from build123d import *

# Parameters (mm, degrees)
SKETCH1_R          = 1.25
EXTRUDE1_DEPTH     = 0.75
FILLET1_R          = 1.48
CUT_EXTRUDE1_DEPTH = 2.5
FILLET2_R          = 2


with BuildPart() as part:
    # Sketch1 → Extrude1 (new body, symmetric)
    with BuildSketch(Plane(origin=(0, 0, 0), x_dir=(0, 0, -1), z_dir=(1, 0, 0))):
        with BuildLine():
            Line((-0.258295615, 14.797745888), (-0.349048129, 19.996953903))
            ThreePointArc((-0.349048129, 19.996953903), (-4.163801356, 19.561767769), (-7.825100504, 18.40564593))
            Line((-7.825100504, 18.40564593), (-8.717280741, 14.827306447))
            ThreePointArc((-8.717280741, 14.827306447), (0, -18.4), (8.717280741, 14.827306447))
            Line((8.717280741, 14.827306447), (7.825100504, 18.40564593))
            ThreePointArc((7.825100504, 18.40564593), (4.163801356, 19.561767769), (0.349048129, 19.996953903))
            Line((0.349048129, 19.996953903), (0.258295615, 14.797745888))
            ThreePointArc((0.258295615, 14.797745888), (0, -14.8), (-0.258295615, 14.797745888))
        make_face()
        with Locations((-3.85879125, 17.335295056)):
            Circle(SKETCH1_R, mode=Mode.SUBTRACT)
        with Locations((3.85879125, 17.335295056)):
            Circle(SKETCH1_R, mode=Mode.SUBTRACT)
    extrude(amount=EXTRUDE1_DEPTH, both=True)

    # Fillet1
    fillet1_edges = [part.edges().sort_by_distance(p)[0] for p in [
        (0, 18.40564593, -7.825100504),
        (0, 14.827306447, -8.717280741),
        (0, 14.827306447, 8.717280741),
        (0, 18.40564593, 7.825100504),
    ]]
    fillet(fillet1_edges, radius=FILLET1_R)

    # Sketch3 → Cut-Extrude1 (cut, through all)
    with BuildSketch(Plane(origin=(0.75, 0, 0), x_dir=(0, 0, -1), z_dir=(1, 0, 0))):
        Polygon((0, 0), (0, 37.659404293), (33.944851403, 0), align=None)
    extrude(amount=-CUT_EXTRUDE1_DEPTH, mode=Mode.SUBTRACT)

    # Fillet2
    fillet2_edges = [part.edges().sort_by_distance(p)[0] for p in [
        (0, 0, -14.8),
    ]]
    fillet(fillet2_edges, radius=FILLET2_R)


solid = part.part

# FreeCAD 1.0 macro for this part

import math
import FreeCAD as App
import Part
import Sketcher
Q = App.Units.Quantity


def edges_at(feature, points):
    """Names of the edges that pass closest to the given points."""
    edges = feature.Shape.Edges
    near = lambda p: min(range(len(edges)), key=lambda i: edges[i].distToShape(Part.Vertex(*p))[0])
    return sorted({f"Edge{near(p) + 1}" for p in points})

doc = App.newDocument("Part")
params = doc.addObject("Spreadsheet::Sheet", "Params")
for row, (alias, value) in enumerate([
    ("sketch1_radius", "20 mm"),
    ("sketch1_diameter", "2.5 mm"),
    ("sketch1_radius2", "14.8 mm"),
    ("pad1_length", "1.5 mm"),
    ("fillet_radius", "1.48 mm"),
    ("fillet2_radius", "2 mm"),
], start=1):
    params.set(f"A{row}", alias)
    params.set(f"B{row}", "=" + value)
    params.setAlias(f"B{row}", alias)

body = doc.addObject("PartDesign::Body", "Body")

# Sketch on YZ plane
sketch1 = doc.addObject("Sketcher::SketchObject", "Sketch")
body.addObject(sketch1)
sketch1.AttachmentSupport = (doc.YZ_Plane, [""])
sketch1.MapMode = "FlatFace"
sketch1.addGeometry([
    Part.LineSegment(App.Vector(14.8, 0.3, 0), App.Vector(20, 0.3, 0)),  # 0
    Part.ArcOfCircle(Part.Circle(App.Vector(0, 0, 0), App.Vector(0, 0, 1), 20), math.radians(1), math.radians(23)),  # 1
    Part.LineSegment(App.Vector(18.4, 7.8, 0), App.Vector(14.8, 8.7, 0)),  # 2
    Part.ArcOfCircle(Part.Circle(App.Vector(-0.6, 0, 0), App.Vector(0, 0, 1), 17.8), math.radians(29), math.radians(331)),  # 3
    Part.LineSegment(App.Vector(14.8, -8.7, 0), App.Vector(18.4, -7.8, 0)),  # 4
    Part.ArcOfCircle(Part.Circle(App.Vector(0, 0, 0), App.Vector(0, 0, 1), 20), math.radians(-23), math.radians(-1)),  # 5
    Part.LineSegment(App.Vector(20, -0.3, 0), App.Vector(14.8, -0.3, 0)),  # 6
    Part.ArcOfCircle(Part.Circle(App.Vector(0, 0, 0), App.Vector(0, 0, 1), 14.8), math.radians(1), math.radians(359)),  # 7
    Part.Circle(App.Vector(17.3, 3.9, 0), App.Vector(0, 0, 1), 1.2),  # 8
    Part.Circle(App.Vector(17.3, -3.9, 0), App.Vector(0, 0, 1), 1.2),  # 9
], False)
sketch1.addConstraint([
    Sketcher.Constraint("Coincident", 0, 2, 1, 1),
    Sketcher.Constraint("Coincident", 1, 2, 2, 1),
    Sketcher.Constraint("Coincident", 2, 2, 3, 1),
    Sketcher.Constraint("Coincident", 3, 2, 4, 1),
    Sketcher.Constraint("Coincident", 4, 2, 5, 1),
    Sketcher.Constraint("Coincident", 5, 2, 6, 1),
    Sketcher.Constraint("Coincident", 6, 2, 7, 2),
    Sketcher.Constraint("Coincident", 7, 1, 0, 1),
    Sketcher.Constraint("Coincident", 1, 3, -1, 1),
    Sketcher.Constraint("Coincident", 5, 3, -1, 1),
    Sketcher.Constraint("Coincident", 7, 3, -1, 1),
    Sketcher.Constraint("Equal", 1, 5),
    Sketcher.Constraint("Equal", 8, 9),
    Sketcher.Constraint("Symmetric", 8, 3, 9, 3, -1),
    Sketcher.Constraint("Symmetric", 2, 2, 3, 2, -1),
    Sketcher.Constraint("Vertical", 1, 2, 4, 2),
    Sketcher.Constraint("Vertical", 0, 2, 5, 2),
    Sketcher.Constraint("Vertical", 6, 2, 7, 1),
    Sketcher.Constraint("Radius", 1, 20.0),
    Sketcher.Constraint("Diameter", 8, 2.5),
    Sketcher.Constraint("Radius", 7, 14.8),
    Sketcher.Constraint("Angle", 0, Q("1 deg")),
    Sketcher.Constraint("Angle", 2, Q("166 deg")),
    Sketcher.Constraint("Radius", 3, 17.757155),
    Sketcher.Constraint("DistanceY", -1, 1, 1, 2, 7.825101),
    Sketcher.Constraint("DistanceX", 6, 2, 4, 2, 3.6079),
    Sketcher.Constraint("DistanceY", -1, 1, 8, 3, 3.858791),
    Sketcher.Constraint("DistanceY", -1, 1, 2, 2, 8.717281),
    Sketcher.Constraint("DistanceX", 3, 3, 8, 3, 17.97814),
])
sketch1.setExpression("Constraints[18]", "Params.sketch1_radius")
sketch1.setExpression("Constraints[19]", "Params.sketch1_diameter")
sketch1.setExpression("Constraints[20]", "Params.sketch1_radius2")
pad1 = doc.addObject("PartDesign::Pad", "Pad")
body.addObject(pad1)
pad1.Profile = sketch1
pad1.setExpression("Length", "Params.pad1_length")
pad1.Midplane = True
doc.recompute()

fillet = doc.addObject("PartDesign::Fillet", "Fillet")
body.addObject(fillet)
fillet.Base = (pad1, edges_at(pad1, [
    (0, 18.406, -7.825),
    (0, 14.827, -8.717),
    (0, 14.827, 8.717),
    (0, 18.406, 7.825),
]))
fillet.setExpression("Radius", "Params.fillet_radius")

# Sketch on YZ plane
sketch2 = doc.addObject("Sketcher::SketchObject", "Sketch001")
body.addObject(sketch2)
sketch2.AttachmentSupport = (doc.YZ_Plane, [""])
sketch2.MapMode = "FlatFace"
sketch2.AttachmentOffset = App.Placement(App.Vector(0, 0, 0.75), App.Rotation())
sketch2.addGeometry([
    Part.LineSegment(App.Vector(38, 0, 0), App.Vector(0, 0, 0)),
    Part.LineSegment(App.Vector(0, 0, 0), App.Vector(0, -34, 0)),
    Part.LineSegment(App.Vector(0, -34, 0), App.Vector(38, 0, 0)),
], False)
sketch2.addConstraint([
    Sketcher.Constraint("Coincident", 0, 2, 1, 1),
    Sketcher.Constraint("Coincident", 1, 2, 2, 1),
    Sketcher.Constraint("Coincident", 2, 2, 0, 1),
    Sketcher.Constraint("Horizontal", 0),
    Sketcher.Constraint("Vertical", 1),
    Sketcher.Constraint("Coincident", 0, 2, -1, 1),
    Sketcher.Constraint("DistanceY", 1, 2, 1, 1, 33.944851),
    Sketcher.Constraint("DistanceX", 0, 2, 0, 1, 37.659404),
])
pocket1 = doc.addObject("PartDesign::Pocket", "Pocket")
body.addObject(pocket1)
pocket1.Profile = sketch2
pocket1.Type = "ThroughAll"
doc.recompute()

fillet2 = doc.addObject("PartDesign::Fillet", "Fillet001")
body.addObject(fillet2)
fillet2.Base = (pocket1, edges_at(pocket1, [(0, 0, -14.8)]))
fillet2.setExpression("Radius", "Params.fillet2_radius")

doc.recompute()
